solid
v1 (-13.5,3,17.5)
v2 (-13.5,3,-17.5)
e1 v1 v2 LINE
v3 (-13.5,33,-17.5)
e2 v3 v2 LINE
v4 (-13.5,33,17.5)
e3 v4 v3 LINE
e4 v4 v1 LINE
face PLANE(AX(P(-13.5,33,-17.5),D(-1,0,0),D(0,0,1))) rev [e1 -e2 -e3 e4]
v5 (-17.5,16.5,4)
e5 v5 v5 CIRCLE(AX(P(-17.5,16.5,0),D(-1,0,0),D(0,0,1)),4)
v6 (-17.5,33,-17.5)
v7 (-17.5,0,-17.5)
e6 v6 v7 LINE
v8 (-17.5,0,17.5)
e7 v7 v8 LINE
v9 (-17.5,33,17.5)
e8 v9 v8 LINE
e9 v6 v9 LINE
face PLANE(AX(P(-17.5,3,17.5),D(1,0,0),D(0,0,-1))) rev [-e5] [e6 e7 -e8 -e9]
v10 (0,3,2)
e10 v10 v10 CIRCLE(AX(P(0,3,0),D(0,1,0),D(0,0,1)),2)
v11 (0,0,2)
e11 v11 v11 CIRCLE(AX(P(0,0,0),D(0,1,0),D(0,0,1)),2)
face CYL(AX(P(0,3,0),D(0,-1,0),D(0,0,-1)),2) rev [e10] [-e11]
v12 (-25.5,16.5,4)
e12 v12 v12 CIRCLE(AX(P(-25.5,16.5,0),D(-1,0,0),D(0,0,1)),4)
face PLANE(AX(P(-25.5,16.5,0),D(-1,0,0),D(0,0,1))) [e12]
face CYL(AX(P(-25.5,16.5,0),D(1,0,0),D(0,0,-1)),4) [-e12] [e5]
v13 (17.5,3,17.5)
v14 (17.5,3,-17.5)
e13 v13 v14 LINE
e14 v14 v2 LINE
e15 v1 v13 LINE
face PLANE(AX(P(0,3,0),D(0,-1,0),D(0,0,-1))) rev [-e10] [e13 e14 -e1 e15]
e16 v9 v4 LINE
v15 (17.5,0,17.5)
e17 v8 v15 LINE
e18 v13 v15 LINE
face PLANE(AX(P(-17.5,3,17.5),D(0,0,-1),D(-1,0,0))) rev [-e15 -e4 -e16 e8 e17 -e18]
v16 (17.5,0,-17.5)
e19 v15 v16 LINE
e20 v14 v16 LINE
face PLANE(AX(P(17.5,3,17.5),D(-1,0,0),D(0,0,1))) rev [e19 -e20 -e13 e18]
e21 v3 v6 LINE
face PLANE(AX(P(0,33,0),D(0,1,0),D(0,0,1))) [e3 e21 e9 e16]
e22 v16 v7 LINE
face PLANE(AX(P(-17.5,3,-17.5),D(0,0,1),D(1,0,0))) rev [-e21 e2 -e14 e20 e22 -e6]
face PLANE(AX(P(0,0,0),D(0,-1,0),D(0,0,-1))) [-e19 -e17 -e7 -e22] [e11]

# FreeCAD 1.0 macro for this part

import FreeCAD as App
import Part
import Sketcher

V = App.Vector
Q = App.Units.Quantity


def add_polygon(sketch, points):
    """Adds a closed chain of lines whose ends are joined by coincident constraints."""
    first, n = sketch.GeometryCount, len(points)
    for a, b in zip(points, points[1:] + points[:1]):
        sketch.addGeometry(Part.LineSegment(App.Vector(*a, 0), App.Vector(*b, 0)), False)
    for i in range(n):
        sketch.addConstraint(Sketcher.Constraint("Coincident", first + i, 2, first + (i + 1) % n, 1))

doc = App.newDocument("Part")
params = doc.addObject("Spreadsheet::Sheet", "Params")
for row, (alias, value) in enumerate([
    ("sketch1_diameter", "4 mm"),
    ("sketch1_width", "35 mm"),
    ("pad1_length", "3 mm"),
    ("sketch2_width", "4 mm"),
    ("sketch2_height", "35 mm"),
    ("pad2_length", "30 mm"),
    ("sketch3_diameter", "8 mm"),
    ("pad3_length", "8 mm"),
], start=1):
    params.set(f"A{row}", alias)
    params.set(f"B{row}", "=" + value)
    params.setAlias(f"B{row}", alias)

body = doc.addObject("PartDesign::Body", "Body")

# Sketch on XZ plane
sketch1 = body.newObject("Sketcher::SketchObject", "Sketch")
sketch1.AttachmentSupport = (doc.getObject("XZ_Plane"), [""])
sketch1.MapMode = "FlatFace"
add_polygon(sketch1, [(-17.5, -17.5), (-17.5, 17.5), (17.5, 17.5), (17.5, -17.5)])  # lines 0-3
sketch1.addGeometry(Part.Circle(V(0, 0, 0), V(0, 0, 1), 2), False)  # 4
sketch1.addConstraint([
    Sketcher.Constraint("Vertical", 0),
    Sketcher.Constraint("Horizontal", 1),
    Sketcher.Constraint("Vertical", 2),
    Sketcher.Constraint("Horizontal", 3),
    Sketcher.Constraint("Coincident", 4, 3, -1, 1),
    Sketcher.Constraint("Symmetric", 0, 2, 2, 2, -1, 1),
    Sketcher.Constraint("Equal", 3, 0),
    Sketcher.Constraint("Diameter", 4, Q("4 mm")),
    Sketcher.Constraint("DistanceX", 1, 1, 1, 2, Q("35 mm")),
])
sketch1.setExpression("Constraints[11]", "Params.sketch1_diameter")
sketch1.setExpression("Constraints[12]", "Params.sketch1_width")
pad1 = body.newObject("PartDesign::Pad", "Pad")
pad1.Profile = sketch1
pad1.setExpression("Length", "Params.pad1_length")
pad1.Reversed = True

# Sketch on XZ plane
sketch2 = body.newObject("Sketcher::SketchObject", "Sketch001")
sketch2.AttachmentSupport = (doc.getObject("XZ_Plane"), [""])
sketch2.MapMode = "FlatFace"
sketch2.AttachmentOffset = App.Placement(V(0, 0, -3), App.Rotation())
add_polygon(sketch2, [(-17.5, -17.5), (-17.5, 17.5), (-13.5, 17.5), (-13.5, -17.5)])  # lines 0-3
sketch2.addConstraint([
    Sketcher.Constraint("Vertical", 0),
    Sketcher.Constraint("Horizontal", 1),
    Sketcher.Constraint("Vertical", 2),
    Sketcher.Constraint("Horizontal", 3),
    Sketcher.Constraint("DistanceX", 1, 1, 1, 2, Q("4 mm")),
    Sketcher.Constraint("DistanceY", 0, 1, 0, 2, Q("35 mm")),
    Sketcher.Constraint("DistanceX", 0, 2, -1, 1, Q("17.5 mm")),
    Sketcher.Constraint("DistanceY", -1, 1, 0, 2, Q("17.5 mm")),
])
sketch2.setExpression("Constraints[8]", "Params.sketch2_width")
sketch2.setExpression("Constraints[9]", "Params.sketch2_height")
pad2 = body.newObject("PartDesign::Pad", "Pad001")
pad2.Profile = sketch2
pad2.setExpression("Length", "Params.pad2_length")
pad2.Reversed = True

# Sketch on YZ plane
sketch3 = body.newObject("Sketcher::SketchObject", "Sketch002")
sketch3.AttachmentSupport = (doc.getObject("YZ_Plane"), [""])
sketch3.MapMode = "FlatFace"
sketch3.AttachmentOffset = App.Placement(V(0, 0, -17.5), App.Rotation())
sketch3.addGeometry(Part.Circle(V(16.5, 0, 0), V(0, 0, 1), 4), False)
sketch3.addConstraint([
    Sketcher.Constraint("PointOnObject", 0, 3, -1),
    Sketcher.Constraint("Diameter", 0, Q("8 mm")),
    Sketcher.Constraint("DistanceX", -1, 1, 0, 3, Q("16.5 mm")),
])
sketch3.setExpression("Constraints[1]", "Params.sketch3_diameter")
pad3 = body.newObject("PartDesign::Pad", "Pad002")
pad3.Profile = sketch3
pad3.setExpression("Length", "Params.pad3_length")
pad3.Reversed = True

doc.recompute()
